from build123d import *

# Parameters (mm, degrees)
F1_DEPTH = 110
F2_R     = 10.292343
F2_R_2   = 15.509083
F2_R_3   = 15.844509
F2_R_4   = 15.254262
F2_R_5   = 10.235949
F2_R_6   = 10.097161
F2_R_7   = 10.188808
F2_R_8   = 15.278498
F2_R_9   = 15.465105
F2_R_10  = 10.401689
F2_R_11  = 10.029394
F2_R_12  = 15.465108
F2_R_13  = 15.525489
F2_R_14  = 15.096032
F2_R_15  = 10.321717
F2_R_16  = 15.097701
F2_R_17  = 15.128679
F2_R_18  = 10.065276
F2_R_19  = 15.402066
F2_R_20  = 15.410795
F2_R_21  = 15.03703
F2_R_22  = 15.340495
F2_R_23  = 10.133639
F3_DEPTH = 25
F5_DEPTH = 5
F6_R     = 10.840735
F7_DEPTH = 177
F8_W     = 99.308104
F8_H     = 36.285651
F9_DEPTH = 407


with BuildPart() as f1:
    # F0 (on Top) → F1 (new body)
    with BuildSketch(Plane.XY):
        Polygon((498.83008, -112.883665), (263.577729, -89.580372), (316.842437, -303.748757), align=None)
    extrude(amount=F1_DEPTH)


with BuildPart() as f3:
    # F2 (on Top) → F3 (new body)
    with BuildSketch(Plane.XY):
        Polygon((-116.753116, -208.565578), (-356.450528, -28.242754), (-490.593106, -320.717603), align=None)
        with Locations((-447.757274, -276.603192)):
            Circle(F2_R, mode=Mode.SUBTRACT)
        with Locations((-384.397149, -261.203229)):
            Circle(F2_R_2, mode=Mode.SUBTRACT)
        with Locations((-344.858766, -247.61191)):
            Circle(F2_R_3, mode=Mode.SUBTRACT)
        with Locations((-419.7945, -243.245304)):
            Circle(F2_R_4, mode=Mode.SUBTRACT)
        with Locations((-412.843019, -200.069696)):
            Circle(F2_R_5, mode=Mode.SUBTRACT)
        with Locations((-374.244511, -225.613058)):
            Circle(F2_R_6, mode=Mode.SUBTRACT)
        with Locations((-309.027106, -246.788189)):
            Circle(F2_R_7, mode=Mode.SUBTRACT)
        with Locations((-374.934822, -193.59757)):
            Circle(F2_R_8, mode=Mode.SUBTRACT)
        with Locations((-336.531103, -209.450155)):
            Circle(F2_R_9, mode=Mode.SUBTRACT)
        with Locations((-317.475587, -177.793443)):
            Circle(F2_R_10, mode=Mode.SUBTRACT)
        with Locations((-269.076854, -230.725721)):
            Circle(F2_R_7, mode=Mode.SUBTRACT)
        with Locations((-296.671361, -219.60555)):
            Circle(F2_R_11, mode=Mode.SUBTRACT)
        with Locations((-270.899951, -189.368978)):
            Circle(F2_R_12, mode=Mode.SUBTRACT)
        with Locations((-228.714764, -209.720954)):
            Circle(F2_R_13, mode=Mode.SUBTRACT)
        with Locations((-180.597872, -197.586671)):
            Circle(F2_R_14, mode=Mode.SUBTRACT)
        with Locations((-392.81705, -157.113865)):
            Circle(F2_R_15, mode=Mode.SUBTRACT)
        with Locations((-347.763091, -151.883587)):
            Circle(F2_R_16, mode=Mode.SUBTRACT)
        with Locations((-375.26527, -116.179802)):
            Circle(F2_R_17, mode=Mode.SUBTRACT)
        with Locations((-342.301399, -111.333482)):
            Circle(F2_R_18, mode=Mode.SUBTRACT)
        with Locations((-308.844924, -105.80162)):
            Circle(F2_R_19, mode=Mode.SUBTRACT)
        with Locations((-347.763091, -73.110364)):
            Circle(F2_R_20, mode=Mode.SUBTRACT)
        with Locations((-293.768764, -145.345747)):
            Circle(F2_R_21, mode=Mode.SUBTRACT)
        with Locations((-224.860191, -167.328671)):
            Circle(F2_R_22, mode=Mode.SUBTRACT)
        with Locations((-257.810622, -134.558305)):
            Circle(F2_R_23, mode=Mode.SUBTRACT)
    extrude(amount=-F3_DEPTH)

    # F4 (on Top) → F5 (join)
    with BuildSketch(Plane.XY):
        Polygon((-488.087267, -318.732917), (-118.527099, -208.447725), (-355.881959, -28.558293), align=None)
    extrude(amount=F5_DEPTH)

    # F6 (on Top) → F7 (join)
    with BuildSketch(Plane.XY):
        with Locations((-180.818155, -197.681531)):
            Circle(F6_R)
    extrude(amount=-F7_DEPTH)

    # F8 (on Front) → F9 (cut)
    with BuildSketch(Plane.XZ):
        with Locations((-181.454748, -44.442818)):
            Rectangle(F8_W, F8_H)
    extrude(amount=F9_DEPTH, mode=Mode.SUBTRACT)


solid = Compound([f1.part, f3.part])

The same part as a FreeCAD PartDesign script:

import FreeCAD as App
import Part
import Sketcher
Q = App.Units.Quantity

doc = App.newDocument("Part")
params = doc.addObject("Spreadsheet::Sheet", "Params")
for row, (alias, value) in enumerate([
    ("pad1_length", "110 mm"),
    ("pad2_length", "25 mm"),
    ("pad3_length", "5 mm"),
    ("pad4_length", "177 mm"),
    ("pocket1_length", "407 mm"),
], start=1):
    params.set(f"A{row}", alias)
    params.set(f"B{row}", "=" + value)
    params.setAlias(f"B{row}", alias)

body = doc.addObject("PartDesign::Body", "Body")

sketch1 = body.newObject("Sketcher::SketchObject", "Sketch")
sketch1.AttachmentSupport = (doc.getObject("XY_Plane"), [""])
sketch1.MapMode = "FlatFace"
sketch1.addGeometry(Part.LineSegment(App.Vector(499, -113, 0), App.Vector(264, -90, 0)), False)
sketch1.addGeometry(Part.LineSegment(App.Vector(264, -90, 0), App.Vector(317, -304, 0)), False)
sketch1.addGeometry(Part.LineSegment(App.Vector(317, -304, 0), App.Vector(499, -113, 0)), False)
sketch1.addConstraint(Sketcher.Constraint("Coincident", 0, 2, 1, 1))
sketch1.addConstraint(Sketcher.Constraint("Coincident", 1, 2, 2, 1))
sketch1.addConstraint(Sketcher.Constraint("Coincident", 2, 2, 0, 1))
sketch1.addConstraint(Sketcher.Constraint("DistanceX", -1, 1, 0, 2, Q("263.577729 mm")))
sketch1.addConstraint(Sketcher.Constraint("DistanceY", 0, 2, -1, 1, Q("89.580372 mm")))
sketch1.addConstraint(Sketcher.Constraint("DistanceX", -1, 1, 2, 2, Q("498.83008 mm")))
sketch1.addConstraint(Sketcher.Constraint("DistanceX", 0, 2, 1, 2, Q("53.264708 mm")))
sketch1.addConstraint(Sketcher.Constraint("DistanceY", 1, 2, 2, 2, Q("190.865092 mm")))
sketch1.addConstraint(Sketcher.Constraint("Distance", 0, Q("236.403706 mm")))
pad1 = body.newObject("PartDesign::Pad", "Pad")
pad1.Profile = sketch1
pad1.setExpression("Length", "Params.pad1_length")
body2 = doc.addObject("PartDesign::Body", "Body001")
body2.AllowCompound = True

sketch2 = body2.newObject("Sketcher::SketchObject", "Sketch001")
sketch2.AttachmentSupport = (doc.getObject("XY_Plane001"), [""])
sketch2.MapMode = "FlatFace"
sketch2.addGeometry(Part.LineSegment(App.Vector(-117, -209, 0), App.Vector(-356, -28, 0)), False)
sketch2.addGeometry(Part.LineSegment(App.Vector(-356, -28, 0), App.Vector(-491, -321, 0)), False)
sketch2.addGeometry(Part.LineSegment(App.Vector(-491, -321, 0), App.Vector(-117, -209, 0)), False)
sketch2.addGeometry(Part.Circle(App.Vector(-448, -277, 0), App.Vector(0, 0, 1), 10), False)
sketch2.addGeometry(Part.Circle(App.Vector(-420, -243, 0), App.Vector(0, 0, 1), 15), False)
sketch2.addGeometry(Part.Circle(App.Vector(-384, -261, 0), App.Vector(0, 0, 1), 16), False)
sketch2.addGeometry(Part.Circle(App.Vector(-345, -248, 0), App.Vector(0, 0, 1), 16), False)
sketch2.addGeometry(Part.Circle(App.Vector(-413, -200, 0), App.Vector(0, 0, 1), 10), False)
sketch2.addGeometry(Part.Circle(App.Vector(-374, -226, 0), App.Vector(0, 0, 1), 10), False)
sketch2.addGeometry(Part.Circle(App.Vector(-337, -209, 0), App.Vector(0, 0, 1), 15), False)
sketch2.addGeometry(Part.Circle(App.Vector(-375, -194, 0), App.Vector(0, 0, 1), 15), False)
sketch2.addGeometry(Part.Circle(App.Vector(-317, -178, 0), App.Vector(0, 0, 1), 10), False)
sketch2.addGeometry(Part.Circle(App.Vector(-309, -247, 0), App.Vector(0, 0, 1), 10), False)
sketch2.addGeometry(Part.Circle(App.Vector(-269, -231, 0), App.Vector(0, 0, 1), 10), False)
sketch2.addGeometry(Part.Circle(App.Vector(-297, -220, 0), App.Vector(0, 0, 1), 10), False)
sketch2.addGeometry(Part.Circle(App.Vector(-271, -189, 0), App.Vector(0, 0, 1), 15), False)
sketch2.addGeometry(Part.Circle(App.Vector(-229, -210, 0), App.Vector(0, 0, 1), 16), False)
sketch2.addGeometry(Part.Circle(App.Vector(-181, -198, 0), App.Vector(0, 0, 1), 15), False)
sketch2.addGeometry(Part.Circle(App.Vector(-393, -157, 0), App.Vector(0, 0, 1), 10), False)
sketch2.addGeometry(Part.Circle(App.Vector(-348, -152, 0), App.Vector(0, 0, 1), 15), False)
sketch2.addGeometry(Part.Circle(App.Vector(-375, -116, 0), App.Vector(0, 0, 1), 15), False)
sketch2.addGeometry(Part.Circle(App.Vector(-342, -111, 0), App.Vector(0, 0, 1), 10), False)
sketch2.addGeometry(Part.Circle(App.Vector(-348, -73, 0), App.Vector(0, 0, 1), 15), False)
sketch2.addGeometry(Part.Circle(App.Vector(-294, -145, 0), App.Vector(0, 0, 1), 15), False)
sketch2.addGeometry(Part.Circle(App.Vector(-258, -135, 0), App.Vector(0, 0, 1), 10), False)
sketch2.addGeometry(Part.Circle(App.Vector(-225, -167, 0), App.Vector(0, 0, 1), 15), False)
sketch2.addGeometry(Part.Circle(App.Vector(-309, -106, 0), App.Vector(0, 0, 1), 15), False)
sketch2.addConstraint(Sketcher.Constraint("Coincident", 0, 2, 1, 1))
sketch2.addConstraint(Sketcher.Constraint("Coincident", 1, 2, 2, 1))
sketch2.addConstraint(Sketcher.Constraint("Coincident", 2, 2, 0, 1))
sketch2.addConstraint(Sketcher.Constraint("Equal", 12, 13))
sketch2.addConstraint(Sketcher.Constraint("Vertical", 19, 3, 22, 3))
sketch2.addConstraint(Sketcher.Constraint("Diameter", 6, Q("31.689018 mm")))
sketch2.addConstraint(Sketcher.Constraint("Diameter", 8, Q("20.194322 mm")))
sketch2.addConstraint(Sketcher.Constraint("Diameter", 9, Q("30.93021 mm")))
sketch2.addConstraint(Sketcher.Constraint("Diameter", 14, Q("20.058788 mm")))
sketch2.addConstraint(Sketcher.Constraint("Diameter", 16, Q("31.050978 mm")))
sketch2.addConstraint(Sketcher.Constraint("Diameter", 20, Q("30.257358 mm")))
sketch2.addConstraint(Sketcher.Constraint("Diameter", 22, Q("30.82159 mm")))
sketch2.addConstraint(Sketcher.Constraint("Diameter", 23, Q("30.07406 mm")))
sketch2.addConstraint(Sketcher.Constraint("Diameter", 24, Q("20.267278 mm")))
sketch2.addConstraint(Sketcher.Constraint("Diameter", 25, Q("30.68099 mm")))
sketch2.addConstraint(Sketcher.Constraint("Diameter", 26, Q("30.804132 mm")))
sketch2.addConstraint(Sketcher.Constraint("Diameter", 3, Q("20.584686 mm")))
sketch2.addConstraint(Sketcher.Constraint("Diameter", 4, Q("30.508524 mm")))
sketch2.addConstraint(Sketcher.Constraint("Diameter", 5, Q("31.018166 mm")))
sketch2.addConstraint(Sketcher.Constraint("Diameter", 7, Q("20.471898 mm")))
sketch2.addConstraint(Sketcher.Constraint("Diameter", 10, Q("30.556996 mm")))
sketch2.addConstraint(Sketcher.Constraint("Diameter", 11, Q("20.803378 mm")))
sketch2.addConstraint(Sketcher.Constraint("Diameter", 12, Q("20.377616 mm")))
sketch2.addConstraint(Sketcher.Constraint("Diameter", 15, Q("30.930216 mm")))
sketch2.addConstraint(Sketcher.Constraint("Diameter", 17, Q("30.192064 mm")))
sketch2.addConstraint(Sketcher.Constraint("Diameter", 18, Q("20.643434 mm")))
sketch2.addConstraint(Sketcher.Constraint("Diameter", 19, Q("30.195402 mm")))
sketch2.addConstraint(Sketcher.Constraint("Diameter", 21, Q("20.130552 mm")))
sketch2.addConstraint(Sketcher.Constraint("DistanceY", 17, 3, 25, 3, Q("30.258 mm")))
sketch2.addConstraint(Sketcher.Constraint("DistanceX", 4, 3, -1, 1, Q("419.7945 mm")))
sketch2.addConstraint(Sketcher.Constraint("DistanceY", 20, 3, -1, 1, Q("116.179802 mm")))
sketch2.addConstraint(Sketcher.Constraint("DistanceX", 21, 3, -1, 1, Q("342.301399 mm")))
sketch2.addConstraint(Sketcher.Constraint("DistanceY", 18, 3, 22, 3, Q("84.003501 mm")))
sketch2.addConstraint(Sketcher.Constraint("DistanceX", 26, 3, 24, 3, Q("51.034302 mm")))
sketch2.addConstraint(Sketcher.Constraint("DistanceY", 1, 2, 4, 3, Q("77.472299 mm")))
sketch2.addConstraint(Sketcher.Constraint("DistanceY", 2, 2, 15, 3, Q("19.1966 mm")))
sketch2.addConstraint(Sketcher.Constraint("DistanceY", 3, 3, -1, 1, Q("276.603192 mm")))
sketch2.addConstraint(Sketcher.Constraint("DistanceX", 5, 3, -1, 1, Q("384.397149 mm")))
sketch2.addConstraint(Sketcher.Constraint("DistanceY", 5, 3, -1, 1, Q("261.203229 mm")))
sketch2.addConstraint(Sketcher.Constraint("DistanceY", 6, 3, -1, 1, Q("247.61191 mm")))
sketch2.addConstraint(Sketcher.Constraint("DistanceX", 7, 3, -1, 1, Q("412.843019 mm")))
sketch2.addConstraint(Sketcher.Constraint("DistanceX", 8, 3, -1, 1, Q("374.244511 mm")))
sketch2.addConstraint(Sketcher.Constraint("DistanceY", 8, 3, -1, 1, Q("225.613058 mm")))
sketch2.addConstraint(Sketcher.Constraint("DistanceX", 10, 3, -1, 1, Q("374.934822 mm")))
sketch2.addConstraint(Sketcher.Constraint("DistanceY", 10, 3, -1, 1, Q("193.59757 mm")))
sketch2.addConstraint(Sketcher.Constraint("DistanceY", 12, 3, -1, 1, Q("246.788189 mm")))
sketch2.addConstraint(Sketcher.Constraint("DistanceY", 13, 3, -1, 1, Q("230.725721 mm")))
sketch2.addConstraint(Sketcher.Constraint("DistanceX", 14, 3, -1, 1, Q("296.671361 mm")))
sketch2.addConstraint(Sketcher.Constraint("DistanceY", 14, 3, -1, 1, Q("219.60555 mm")))
sketch2.addConstraint(Sketcher.Constraint("DistanceX", 15, 3, -1, 1, Q("270.899951 mm")))
sketch2.addConstraint(Sketcher.Constraint("DistanceY", 15, 3, -1, 1, Q("189.368978 mm")))
sketch2.addConstraint(Sketcher.Constraint("DistanceX", 17, 3, -1, 1, Q("180.597872 mm")))
sketch2.addConstraint(Sketcher.Constraint("DistanceY", 17, 3, -1, 1, Q("197.586671 mm")))
sketch2.addConstraint(Sketcher.Constraint("DistanceX", 18, 3, -1, 1, Q("392.81705 mm")))
sketch2.addConstraint(Sketcher.Constraint("DistanceX", 19, 3, -1, 1, Q("347.763091 mm")))
sketch2.addConstraint(Sketcher.Constraint("DistanceX", 20, 3, -1, 1, Q("375.26527 mm")))
sketch2.addConstraint(Sketcher.Constraint("DistanceX", 25, 3, -1, 1, Q("224.860191 mm")))
sketch2.addConstraint(Sketcher.Constraint("DistanceY", 26, 3, -1, 1, Q("105.80162 mm")))
sketch2.addConstraint(Sketcher.Constraint("DistanceX", 0, 2, -1, 1, Q("356.450528 mm")))
sketch2.addConstraint(Sketcher.Constraint("DistanceY", 4, 3, 7, 3, Q("43.175608 mm")))
sketch2.addConstraint(Sketcher.Constraint("DistanceX", 8, 3, 9, 3, Q("37.713408 mm")))
sketch2.addConstraint(Sketcher.Constraint("DistanceY", 9, 3, 7, 3, Q("9.380459 mm")))
sketch2.addConstraint(Sketcher.Constraint("DistanceY", 9, 3, 11, 3, Q("31.656712 mm")))
sketch2.addConstraint(Sketcher.Constraint("DistanceX", 6, 3, 11, 3, Q("27.383179 mm")))
sketch2.addConstraint(Sketcher.Constraint("DistanceX", 6, 3, 12, 3, Q("35.83166 mm")))
sketch2.addConstraint(Sketcher.Constraint("DistanceX", 12, 3, 13, 3, Q("39.950252 mm")))
sketch2.addConstraint(Sketcher.Constraint("DistanceX", 9, 3, 13, 3, Q("67.454249 mm")))
sketch2.addConstraint(Sketcher.Constraint("DistanceX", 13, 3, 16, 3, Q("40.36209 mm")))
sketch2.addConstraint(Sketcher.Constraint("DistanceY", 16, 3, 11, 3, Q("31.927511 mm")))
sketch2.addConstraint(Sketcher.Constraint("DistanceY", 7, 3, 18, 3, Q("42.955831 mm")))
sketch2.addConstraint(Sketcher.Constraint("DistanceY", 8, 3, 19, 3, Q("73.729471 mm")))
sketch2.addConstraint(Sketcher.Constraint("DistanceY", 11, 3, 20, 3, Q("61.613641 mm")))
sketch2.addConstraint(Sketcher.Constraint("DistanceY", 20, 3, 21, 3, Q("4.84632 mm")))
sketch2.addConstraint(Sketcher.Constraint("DistanceY", 15, 3, 23, 3, Q("44.023231 mm")))
sketch2.addConstraint(Sketcher.Constraint("DistanceX", 23, 3, 24, 3, Q("35.958142 mm")))
sketch2.addConstraint(Sketcher.Constraint("DistanceY", 23, 3, 24, 3, Q("10.787442 mm")))
sketch2.addConstraint(Sketcher.Constraint("DistanceX", 15, 3, 24, 3, Q("13.089329 mm")))
sketch2.addConstraint(Sketcher.Constraint("DistanceY", 22, 3, 0, 2, Q("44.86761 mm")))
sketch2.addConstraint(Sketcher.Constraint("DistanceX", 1, 2, 3, 3, Q("42.835832 mm")))
sketch2.addConstraint(Sketcher.Constraint("DistanceX", 13, 3, 2, 2, Q("152.323738 mm")))
sketch2.addConstraint(Sketcher.Constraint("Distance", 1, Q("321.769745 mm")))
pad2 = body2.newObject("PartDesign::Pad", "Pad001")
pad2.Profile = sketch2
pad2.setExpression("Length", "Params.pad2_length")
pad2.Reversed = True

sketch3 = body2.newObject("Sketcher::SketchObject", "Sketch002")
sketch3.AttachmentSupport = (doc.getObject("XY_Plane001"), [""])
sketch3.MapMode = "FlatFace"
sketch3.addGeometry(Part.LineSegment(App.Vector(-488, -319, 0), App.Vector(-119, -208, 0)), False)
sketch3.addGeometry(Part.LineSegment(App.Vector(-119, -208, 0), App.Vector(-356, -29, 0)), False)
sketch3.addGeometry(Part.LineSegment(App.Vector(-356, -29, 0), App.Vector(-488, -319, 0)), False)
sketch3.addConstraint(Sketcher.Constraint("Coincident", 0, 2, 1, 1))
sketch3.addConstraint(Sketcher.Constraint("Coincident", 1, 2, 2, 1))
sketch3.addConstraint(Sketcher.Constraint("Coincident", 2, 2, 0, 1))
sketch3.addConstraint(Sketcher.Constraint("DistanceX", 0, 2, -1, 1, Q("118.527099 mm")))
sketch3.addConstraint(Sketcher.Constraint("Distance", 2, Q("318.872319 mm")))
sketch3.addConstraint(Sketcher.Constraint("DistanceX", 1, 2, -1, 1, Q("355.881959 mm")))
sketch3.addConstraint(Sketcher.Constraint("DistanceY", 0, 2, 1, 2, Q("179.889432 mm")))
sketch3.addConstraint(Sketcher.Constraint("DistanceX", 2, 2, 1, 2, Q("132.205308 mm")))
sketch3.addConstraint(Sketcher.Constraint("DistanceY", 0, 2, -1, 1, Q("208.447725 mm")))
pad3 = body2.newObject("PartDesign::Pad", "Pad002")
pad3.Profile = sketch3
pad3.setExpression("Length", "Params.pad3_length")

sketch4 = body2.newObject("Sketcher::SketchObject", "Sketch003")
sketch4.AttachmentSupport = (doc.getObject("XY_Plane001"), [""])
sketch4.MapMode = "FlatFace"
sketch4.addGeometry(Part.Circle(App.Vector(-181, -198, 0), App.Vector(0, 0, 1), 11), False)
sketch4.addConstraint(Sketcher.Constraint("Diameter", 0, Q("21.68147 mm")))
sketch4.addConstraint(Sketcher.Constraint("DistanceY", 0, 3, -1, 1, Q("197.681531 mm")))
sketch4.addConstraint(Sketcher.Constraint("DistanceX", 0, 3, -1, 1, Q("180.818155 mm")))
pad4 = body2.newObject("PartDesign::Pad", "Pad003")
pad4.Profile = sketch4
pad4.setExpression("Length", "Params.pad4_length")
pad4.Reversed = True

sketch5 = body2.newObject("Sketcher::SketchObject", "Sketch004")
sketch5.AttachmentSupport = (doc.getObject("XZ_Plane001"), [""])
sketch5.MapMode = "FlatFace"
sketch5.addGeometry(Part.LineSegment(App.Vector(-231, -26, 0), App.Vector(-231, -63, 0)), False)
sketch5.addGeometry(Part.LineSegment(App.Vector(-231, -63, 0), App.Vector(-132, -63, 0)), False)
sketch5.addGeometry(Part.LineSegment(App.Vector(-132, -63, 0), App.Vector(-132, -26, 0)), False)
sketch5.addGeometry(Part.LineSegment(App.Vector(-132, -26, 0), App.Vector(-231, -26, 0)), False)
sketch5.addConstraint(Sketcher.Constraint("Coincident", 0, 2, 1, 1))
sketch5.addConstraint(Sketcher.Constraint("Coincident", 1, 2, 2, 1))
sketch5.addConstraint(Sketcher.Constraint("Coincident", 2, 2, 3, 1))
sketch5.addConstraint(Sketcher.Constraint("Coincident", 3, 2, 0, 1))
sketch5.addConstraint(Sketcher.Constraint("Vertical", 0))
sketch5.addConstraint(Sketcher.Constraint("Horizontal", 1))
sketch5.addConstraint(Sketcher.Constraint("Vertical", 2))
sketch5.addConstraint(Sketcher.Constraint("Horizontal", 3))
sketch5.addConstraint(Sketcher.Constraint("DistanceY", 0, 2, 0, 1, Q("36.285651 mm")))
sketch5.addConstraint(Sketcher.Constraint("DistanceX", 0, 2, -1, 1, Q("231.1088 mm")))
sketch5.addConstraint(Sketcher.Constraint("DistanceX", 1, 1, 1, 2, Q("99.308104 mm")))
sketch5.addConstraint(Sketcher.Constraint("DistanceY", 0, 2, -1, 1, Q("62.585644 mm")))
pocket1 = body2.newObject("PartDesign::Pocket", "Pocket")
pocket1.Profile = sketch5
pocket1.setExpression("Length", "Params.pocket1_length")
pocket1.Reversed = True

doc.recompute()
